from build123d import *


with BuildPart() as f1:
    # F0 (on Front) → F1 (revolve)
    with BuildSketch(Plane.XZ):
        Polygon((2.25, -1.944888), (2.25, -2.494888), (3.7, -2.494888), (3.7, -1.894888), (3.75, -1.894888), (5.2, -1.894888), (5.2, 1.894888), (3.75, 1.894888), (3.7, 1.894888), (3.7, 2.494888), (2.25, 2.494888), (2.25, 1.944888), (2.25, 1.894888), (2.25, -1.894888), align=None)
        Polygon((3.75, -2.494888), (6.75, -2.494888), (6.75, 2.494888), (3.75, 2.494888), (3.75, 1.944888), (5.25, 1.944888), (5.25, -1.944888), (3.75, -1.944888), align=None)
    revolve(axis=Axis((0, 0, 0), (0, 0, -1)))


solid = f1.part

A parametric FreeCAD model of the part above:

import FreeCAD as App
import Part
import Sketcher
from FreeCAD import Vector


def add_polygon(sketch, points):
    """Adds a closed chain of lines whose ends are joined by coincident constraints."""
    first, n = sketch.GeometryCount, len(points)
    for a, b in zip(points, points[1:] + points[:1]):
        sketch.addGeometry(Part.LineSegment(App.Vector(*a, 0), App.Vector(*b, 0)), False)
    for i in range(n):
        sketch.addConstraint(Sketcher.Constraint("Coincident", first + i, 2, first + (i + 1) % n, 1))

doc = App.newDocument("Part")
params = doc.addObject("Spreadsheet::Sheet", "Params")
for row, (alias, value) in enumerate([
    ("sketch1_width", "3 mm"),
    ("sketch1_width2", "1.5 mm"),
    ("sketch1_height", "0.6 mm"),
    ("sketch1_width3", "1.45 mm"),
    ("sketch1_height2", "0.55 mm"),
    ("revolution_angle", "360 deg"),
], start=1):
    params.set(f"A{row}", alias)
    params.set(f"B{row}", "=" + value)
    params.setAlias(f"B{row}", alias)

body = doc.addObject("PartDesign::Body", "Body")
body.AllowCompound = True

sketch1 = doc.addObject("Sketcher::SketchObject", "Sketch")
body.addObject(sketch1)
sketch1.AttachmentSupport = (doc.XZ_Plane, [""])
sketch1.MapMode = "FlatFace"
add_polygon(sketch1, [(2.2, -2.5), (3.7, -2.5), (3.7, -1.9), (5.2, -1.9), (5.2, 1.9), (3.7, 1.9), (3.7, 2.5), (2.2, 2.5)])
add_polygon(sketch1, [(3.8, -2.5), (6.8, -2.5), (6.8, 2.5), (3.8, 2.5), (3.8, 1.9), (5.2, 1.9), (5.2, -1.9), (3.8, -1.9)])
sketch1.addConstraint([
    Sketcher.Constraint("Horizontal", 0),
    Sketcher.Constraint("Vertical", 1),
    Sketcher.Constraint("Horizontal", 2),
    Sketcher.Constraint("Vertical", 3),
    Sketcher.Constraint("Horizontal", 4),
    Sketcher.Constraint("Vertical", 5),
    Sketcher.Constraint("Horizontal", 6),
    Sketcher.Constraint("Vertical", 7),
    Sketcher.Constraint("Horizontal", 8),
    Sketcher.Constraint("Vertical", 9),
    Sketcher.Constraint("Horizontal", 10),
    Sketcher.Constraint("Vertical", 11),
    Sketcher.Constraint("Horizontal", 12),
    Sketcher.Constraint("Vertical", 13),
    Sketcher.Constraint("Horizontal", 14),
    Sketcher.Constraint("Vertical", 15),
    Sketcher.Constraint("Symmetric", 1, 2, 4, 2, -1),
    Sketcher.Constraint("Symmetric", 11, 2, 14, 2, -1),
    Sketcher.Constraint("Horizontal", 7, 2, 8, 2),
    Sketcher.Constraint("Horizontal", 6, 2, 9, 2),
    Sketcher.Constraint("Equal", 4, 12),
    Sketcher.Constraint("Equal", 1, 5),
    Sketcher.Constraint("DistanceX", 8, 1, 8, 2, 3.0),
    Sketcher.Constraint("DistanceX", 2, 1, 2, 2, 1.5),
    Sketcher.Constraint("DistanceY", 1, 1, 1, 2, 0.6),
    Sketcher.Constraint("DistanceX", 7, 2, 13, 2, 3.0),
    Sketcher.Constraint("DistanceX", 0, 1, 0, 2, 1.45),
    Sketcher.Constraint("DistanceY", 11, 2, 11, 1, 0.55),
    Sketcher.Constraint("DistanceX", -1, 1, 0, 2, 3.7),
    Sketcher.Constraint("DistanceY", 3, 1, 3, 2, 3.789776),
])
sketch1.setExpression("Constraints[38]", "Params.sketch1_width")
sketch1.setExpression("Constraints[39]", "Params.sketch1_width2")
sketch1.setExpression("Constraints[40]", "Params.sketch1_height")
sketch1.setExpression("Constraints[42]", "Params.sketch1_width3")
sketch1.setExpression("Constraints[43]", "Params.sketch1_height2")
revolution = doc.addObject("PartDesign::Revolution", "Revolution")
body.addObject(revolution)
revolution.Profile = sketch1
revolution.ReferenceAxis = (sketch1, ["V_Axis"])
revolution.setExpression("Angle", "Params.revolution_angle")

doc.recompute()
